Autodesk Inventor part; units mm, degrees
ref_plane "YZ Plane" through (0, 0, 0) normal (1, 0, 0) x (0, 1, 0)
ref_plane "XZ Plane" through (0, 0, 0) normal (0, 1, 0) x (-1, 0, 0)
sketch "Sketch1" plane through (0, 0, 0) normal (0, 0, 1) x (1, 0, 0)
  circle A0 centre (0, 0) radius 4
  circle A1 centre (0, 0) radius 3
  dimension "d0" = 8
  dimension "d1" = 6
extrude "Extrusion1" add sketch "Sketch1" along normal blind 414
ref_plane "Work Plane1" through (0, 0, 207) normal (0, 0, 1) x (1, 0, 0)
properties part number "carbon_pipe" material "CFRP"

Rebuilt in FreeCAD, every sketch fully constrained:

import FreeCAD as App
import Part
import Sketcher

V = App.Vector

doc = App.newDocument("Part")
params = doc.addObject("Spreadsheet::Sheet", "Params")
for row, (alias, value) in enumerate([
    ("sketch1_diameter", "8 mm"),
    ("sketch1_diameter2", "6 mm"),
    ("pad1_length", "414 mm"),
], start=1):
    params.set(f"A{row}", alias)
    params.set(f"B{row}", "=" + value)
    params.setAlias(f"B{row}", alias)

body = doc.addObject("PartDesign::Body", "Body")

# Sketch on XY plane
sketch1 = body.newObject("Sketcher::SketchObject", "Sketch")
sketch1.AttachmentSupport = (doc.getObject("XY_Plane"), [""])
sketch1.MapMode = "FlatFace"
sketch1.addGeometry([
    Part.Circle(V(0, 0, 0), V(0, 0, 1), 4),
    Part.Circle(V(0, 0, 0), V(0, 0, 1), 3),
], False)
sketch1.addConstraint([
    Sketcher.Constraint("Coincident", 0, 3, -1, 1),
    Sketcher.Constraint("Coincident", 1, 3, -1, 1),
    Sketcher.Constraint("Diameter", 0, 8.0),
    Sketcher.Constraint("Diameter", 1, 6.0),
])
sketch1.setExpression("Constraints[2]", "Params.sketch1_diameter")
sketch1.setExpression("Constraints[3]", "Params.sketch1_diameter2")
pad1 = body.newObject("PartDesign::Pad", "Pad")
pad1.Profile = sketch1
pad1.setExpression("Length", "Params.pad1_length")

doc.recompute()
